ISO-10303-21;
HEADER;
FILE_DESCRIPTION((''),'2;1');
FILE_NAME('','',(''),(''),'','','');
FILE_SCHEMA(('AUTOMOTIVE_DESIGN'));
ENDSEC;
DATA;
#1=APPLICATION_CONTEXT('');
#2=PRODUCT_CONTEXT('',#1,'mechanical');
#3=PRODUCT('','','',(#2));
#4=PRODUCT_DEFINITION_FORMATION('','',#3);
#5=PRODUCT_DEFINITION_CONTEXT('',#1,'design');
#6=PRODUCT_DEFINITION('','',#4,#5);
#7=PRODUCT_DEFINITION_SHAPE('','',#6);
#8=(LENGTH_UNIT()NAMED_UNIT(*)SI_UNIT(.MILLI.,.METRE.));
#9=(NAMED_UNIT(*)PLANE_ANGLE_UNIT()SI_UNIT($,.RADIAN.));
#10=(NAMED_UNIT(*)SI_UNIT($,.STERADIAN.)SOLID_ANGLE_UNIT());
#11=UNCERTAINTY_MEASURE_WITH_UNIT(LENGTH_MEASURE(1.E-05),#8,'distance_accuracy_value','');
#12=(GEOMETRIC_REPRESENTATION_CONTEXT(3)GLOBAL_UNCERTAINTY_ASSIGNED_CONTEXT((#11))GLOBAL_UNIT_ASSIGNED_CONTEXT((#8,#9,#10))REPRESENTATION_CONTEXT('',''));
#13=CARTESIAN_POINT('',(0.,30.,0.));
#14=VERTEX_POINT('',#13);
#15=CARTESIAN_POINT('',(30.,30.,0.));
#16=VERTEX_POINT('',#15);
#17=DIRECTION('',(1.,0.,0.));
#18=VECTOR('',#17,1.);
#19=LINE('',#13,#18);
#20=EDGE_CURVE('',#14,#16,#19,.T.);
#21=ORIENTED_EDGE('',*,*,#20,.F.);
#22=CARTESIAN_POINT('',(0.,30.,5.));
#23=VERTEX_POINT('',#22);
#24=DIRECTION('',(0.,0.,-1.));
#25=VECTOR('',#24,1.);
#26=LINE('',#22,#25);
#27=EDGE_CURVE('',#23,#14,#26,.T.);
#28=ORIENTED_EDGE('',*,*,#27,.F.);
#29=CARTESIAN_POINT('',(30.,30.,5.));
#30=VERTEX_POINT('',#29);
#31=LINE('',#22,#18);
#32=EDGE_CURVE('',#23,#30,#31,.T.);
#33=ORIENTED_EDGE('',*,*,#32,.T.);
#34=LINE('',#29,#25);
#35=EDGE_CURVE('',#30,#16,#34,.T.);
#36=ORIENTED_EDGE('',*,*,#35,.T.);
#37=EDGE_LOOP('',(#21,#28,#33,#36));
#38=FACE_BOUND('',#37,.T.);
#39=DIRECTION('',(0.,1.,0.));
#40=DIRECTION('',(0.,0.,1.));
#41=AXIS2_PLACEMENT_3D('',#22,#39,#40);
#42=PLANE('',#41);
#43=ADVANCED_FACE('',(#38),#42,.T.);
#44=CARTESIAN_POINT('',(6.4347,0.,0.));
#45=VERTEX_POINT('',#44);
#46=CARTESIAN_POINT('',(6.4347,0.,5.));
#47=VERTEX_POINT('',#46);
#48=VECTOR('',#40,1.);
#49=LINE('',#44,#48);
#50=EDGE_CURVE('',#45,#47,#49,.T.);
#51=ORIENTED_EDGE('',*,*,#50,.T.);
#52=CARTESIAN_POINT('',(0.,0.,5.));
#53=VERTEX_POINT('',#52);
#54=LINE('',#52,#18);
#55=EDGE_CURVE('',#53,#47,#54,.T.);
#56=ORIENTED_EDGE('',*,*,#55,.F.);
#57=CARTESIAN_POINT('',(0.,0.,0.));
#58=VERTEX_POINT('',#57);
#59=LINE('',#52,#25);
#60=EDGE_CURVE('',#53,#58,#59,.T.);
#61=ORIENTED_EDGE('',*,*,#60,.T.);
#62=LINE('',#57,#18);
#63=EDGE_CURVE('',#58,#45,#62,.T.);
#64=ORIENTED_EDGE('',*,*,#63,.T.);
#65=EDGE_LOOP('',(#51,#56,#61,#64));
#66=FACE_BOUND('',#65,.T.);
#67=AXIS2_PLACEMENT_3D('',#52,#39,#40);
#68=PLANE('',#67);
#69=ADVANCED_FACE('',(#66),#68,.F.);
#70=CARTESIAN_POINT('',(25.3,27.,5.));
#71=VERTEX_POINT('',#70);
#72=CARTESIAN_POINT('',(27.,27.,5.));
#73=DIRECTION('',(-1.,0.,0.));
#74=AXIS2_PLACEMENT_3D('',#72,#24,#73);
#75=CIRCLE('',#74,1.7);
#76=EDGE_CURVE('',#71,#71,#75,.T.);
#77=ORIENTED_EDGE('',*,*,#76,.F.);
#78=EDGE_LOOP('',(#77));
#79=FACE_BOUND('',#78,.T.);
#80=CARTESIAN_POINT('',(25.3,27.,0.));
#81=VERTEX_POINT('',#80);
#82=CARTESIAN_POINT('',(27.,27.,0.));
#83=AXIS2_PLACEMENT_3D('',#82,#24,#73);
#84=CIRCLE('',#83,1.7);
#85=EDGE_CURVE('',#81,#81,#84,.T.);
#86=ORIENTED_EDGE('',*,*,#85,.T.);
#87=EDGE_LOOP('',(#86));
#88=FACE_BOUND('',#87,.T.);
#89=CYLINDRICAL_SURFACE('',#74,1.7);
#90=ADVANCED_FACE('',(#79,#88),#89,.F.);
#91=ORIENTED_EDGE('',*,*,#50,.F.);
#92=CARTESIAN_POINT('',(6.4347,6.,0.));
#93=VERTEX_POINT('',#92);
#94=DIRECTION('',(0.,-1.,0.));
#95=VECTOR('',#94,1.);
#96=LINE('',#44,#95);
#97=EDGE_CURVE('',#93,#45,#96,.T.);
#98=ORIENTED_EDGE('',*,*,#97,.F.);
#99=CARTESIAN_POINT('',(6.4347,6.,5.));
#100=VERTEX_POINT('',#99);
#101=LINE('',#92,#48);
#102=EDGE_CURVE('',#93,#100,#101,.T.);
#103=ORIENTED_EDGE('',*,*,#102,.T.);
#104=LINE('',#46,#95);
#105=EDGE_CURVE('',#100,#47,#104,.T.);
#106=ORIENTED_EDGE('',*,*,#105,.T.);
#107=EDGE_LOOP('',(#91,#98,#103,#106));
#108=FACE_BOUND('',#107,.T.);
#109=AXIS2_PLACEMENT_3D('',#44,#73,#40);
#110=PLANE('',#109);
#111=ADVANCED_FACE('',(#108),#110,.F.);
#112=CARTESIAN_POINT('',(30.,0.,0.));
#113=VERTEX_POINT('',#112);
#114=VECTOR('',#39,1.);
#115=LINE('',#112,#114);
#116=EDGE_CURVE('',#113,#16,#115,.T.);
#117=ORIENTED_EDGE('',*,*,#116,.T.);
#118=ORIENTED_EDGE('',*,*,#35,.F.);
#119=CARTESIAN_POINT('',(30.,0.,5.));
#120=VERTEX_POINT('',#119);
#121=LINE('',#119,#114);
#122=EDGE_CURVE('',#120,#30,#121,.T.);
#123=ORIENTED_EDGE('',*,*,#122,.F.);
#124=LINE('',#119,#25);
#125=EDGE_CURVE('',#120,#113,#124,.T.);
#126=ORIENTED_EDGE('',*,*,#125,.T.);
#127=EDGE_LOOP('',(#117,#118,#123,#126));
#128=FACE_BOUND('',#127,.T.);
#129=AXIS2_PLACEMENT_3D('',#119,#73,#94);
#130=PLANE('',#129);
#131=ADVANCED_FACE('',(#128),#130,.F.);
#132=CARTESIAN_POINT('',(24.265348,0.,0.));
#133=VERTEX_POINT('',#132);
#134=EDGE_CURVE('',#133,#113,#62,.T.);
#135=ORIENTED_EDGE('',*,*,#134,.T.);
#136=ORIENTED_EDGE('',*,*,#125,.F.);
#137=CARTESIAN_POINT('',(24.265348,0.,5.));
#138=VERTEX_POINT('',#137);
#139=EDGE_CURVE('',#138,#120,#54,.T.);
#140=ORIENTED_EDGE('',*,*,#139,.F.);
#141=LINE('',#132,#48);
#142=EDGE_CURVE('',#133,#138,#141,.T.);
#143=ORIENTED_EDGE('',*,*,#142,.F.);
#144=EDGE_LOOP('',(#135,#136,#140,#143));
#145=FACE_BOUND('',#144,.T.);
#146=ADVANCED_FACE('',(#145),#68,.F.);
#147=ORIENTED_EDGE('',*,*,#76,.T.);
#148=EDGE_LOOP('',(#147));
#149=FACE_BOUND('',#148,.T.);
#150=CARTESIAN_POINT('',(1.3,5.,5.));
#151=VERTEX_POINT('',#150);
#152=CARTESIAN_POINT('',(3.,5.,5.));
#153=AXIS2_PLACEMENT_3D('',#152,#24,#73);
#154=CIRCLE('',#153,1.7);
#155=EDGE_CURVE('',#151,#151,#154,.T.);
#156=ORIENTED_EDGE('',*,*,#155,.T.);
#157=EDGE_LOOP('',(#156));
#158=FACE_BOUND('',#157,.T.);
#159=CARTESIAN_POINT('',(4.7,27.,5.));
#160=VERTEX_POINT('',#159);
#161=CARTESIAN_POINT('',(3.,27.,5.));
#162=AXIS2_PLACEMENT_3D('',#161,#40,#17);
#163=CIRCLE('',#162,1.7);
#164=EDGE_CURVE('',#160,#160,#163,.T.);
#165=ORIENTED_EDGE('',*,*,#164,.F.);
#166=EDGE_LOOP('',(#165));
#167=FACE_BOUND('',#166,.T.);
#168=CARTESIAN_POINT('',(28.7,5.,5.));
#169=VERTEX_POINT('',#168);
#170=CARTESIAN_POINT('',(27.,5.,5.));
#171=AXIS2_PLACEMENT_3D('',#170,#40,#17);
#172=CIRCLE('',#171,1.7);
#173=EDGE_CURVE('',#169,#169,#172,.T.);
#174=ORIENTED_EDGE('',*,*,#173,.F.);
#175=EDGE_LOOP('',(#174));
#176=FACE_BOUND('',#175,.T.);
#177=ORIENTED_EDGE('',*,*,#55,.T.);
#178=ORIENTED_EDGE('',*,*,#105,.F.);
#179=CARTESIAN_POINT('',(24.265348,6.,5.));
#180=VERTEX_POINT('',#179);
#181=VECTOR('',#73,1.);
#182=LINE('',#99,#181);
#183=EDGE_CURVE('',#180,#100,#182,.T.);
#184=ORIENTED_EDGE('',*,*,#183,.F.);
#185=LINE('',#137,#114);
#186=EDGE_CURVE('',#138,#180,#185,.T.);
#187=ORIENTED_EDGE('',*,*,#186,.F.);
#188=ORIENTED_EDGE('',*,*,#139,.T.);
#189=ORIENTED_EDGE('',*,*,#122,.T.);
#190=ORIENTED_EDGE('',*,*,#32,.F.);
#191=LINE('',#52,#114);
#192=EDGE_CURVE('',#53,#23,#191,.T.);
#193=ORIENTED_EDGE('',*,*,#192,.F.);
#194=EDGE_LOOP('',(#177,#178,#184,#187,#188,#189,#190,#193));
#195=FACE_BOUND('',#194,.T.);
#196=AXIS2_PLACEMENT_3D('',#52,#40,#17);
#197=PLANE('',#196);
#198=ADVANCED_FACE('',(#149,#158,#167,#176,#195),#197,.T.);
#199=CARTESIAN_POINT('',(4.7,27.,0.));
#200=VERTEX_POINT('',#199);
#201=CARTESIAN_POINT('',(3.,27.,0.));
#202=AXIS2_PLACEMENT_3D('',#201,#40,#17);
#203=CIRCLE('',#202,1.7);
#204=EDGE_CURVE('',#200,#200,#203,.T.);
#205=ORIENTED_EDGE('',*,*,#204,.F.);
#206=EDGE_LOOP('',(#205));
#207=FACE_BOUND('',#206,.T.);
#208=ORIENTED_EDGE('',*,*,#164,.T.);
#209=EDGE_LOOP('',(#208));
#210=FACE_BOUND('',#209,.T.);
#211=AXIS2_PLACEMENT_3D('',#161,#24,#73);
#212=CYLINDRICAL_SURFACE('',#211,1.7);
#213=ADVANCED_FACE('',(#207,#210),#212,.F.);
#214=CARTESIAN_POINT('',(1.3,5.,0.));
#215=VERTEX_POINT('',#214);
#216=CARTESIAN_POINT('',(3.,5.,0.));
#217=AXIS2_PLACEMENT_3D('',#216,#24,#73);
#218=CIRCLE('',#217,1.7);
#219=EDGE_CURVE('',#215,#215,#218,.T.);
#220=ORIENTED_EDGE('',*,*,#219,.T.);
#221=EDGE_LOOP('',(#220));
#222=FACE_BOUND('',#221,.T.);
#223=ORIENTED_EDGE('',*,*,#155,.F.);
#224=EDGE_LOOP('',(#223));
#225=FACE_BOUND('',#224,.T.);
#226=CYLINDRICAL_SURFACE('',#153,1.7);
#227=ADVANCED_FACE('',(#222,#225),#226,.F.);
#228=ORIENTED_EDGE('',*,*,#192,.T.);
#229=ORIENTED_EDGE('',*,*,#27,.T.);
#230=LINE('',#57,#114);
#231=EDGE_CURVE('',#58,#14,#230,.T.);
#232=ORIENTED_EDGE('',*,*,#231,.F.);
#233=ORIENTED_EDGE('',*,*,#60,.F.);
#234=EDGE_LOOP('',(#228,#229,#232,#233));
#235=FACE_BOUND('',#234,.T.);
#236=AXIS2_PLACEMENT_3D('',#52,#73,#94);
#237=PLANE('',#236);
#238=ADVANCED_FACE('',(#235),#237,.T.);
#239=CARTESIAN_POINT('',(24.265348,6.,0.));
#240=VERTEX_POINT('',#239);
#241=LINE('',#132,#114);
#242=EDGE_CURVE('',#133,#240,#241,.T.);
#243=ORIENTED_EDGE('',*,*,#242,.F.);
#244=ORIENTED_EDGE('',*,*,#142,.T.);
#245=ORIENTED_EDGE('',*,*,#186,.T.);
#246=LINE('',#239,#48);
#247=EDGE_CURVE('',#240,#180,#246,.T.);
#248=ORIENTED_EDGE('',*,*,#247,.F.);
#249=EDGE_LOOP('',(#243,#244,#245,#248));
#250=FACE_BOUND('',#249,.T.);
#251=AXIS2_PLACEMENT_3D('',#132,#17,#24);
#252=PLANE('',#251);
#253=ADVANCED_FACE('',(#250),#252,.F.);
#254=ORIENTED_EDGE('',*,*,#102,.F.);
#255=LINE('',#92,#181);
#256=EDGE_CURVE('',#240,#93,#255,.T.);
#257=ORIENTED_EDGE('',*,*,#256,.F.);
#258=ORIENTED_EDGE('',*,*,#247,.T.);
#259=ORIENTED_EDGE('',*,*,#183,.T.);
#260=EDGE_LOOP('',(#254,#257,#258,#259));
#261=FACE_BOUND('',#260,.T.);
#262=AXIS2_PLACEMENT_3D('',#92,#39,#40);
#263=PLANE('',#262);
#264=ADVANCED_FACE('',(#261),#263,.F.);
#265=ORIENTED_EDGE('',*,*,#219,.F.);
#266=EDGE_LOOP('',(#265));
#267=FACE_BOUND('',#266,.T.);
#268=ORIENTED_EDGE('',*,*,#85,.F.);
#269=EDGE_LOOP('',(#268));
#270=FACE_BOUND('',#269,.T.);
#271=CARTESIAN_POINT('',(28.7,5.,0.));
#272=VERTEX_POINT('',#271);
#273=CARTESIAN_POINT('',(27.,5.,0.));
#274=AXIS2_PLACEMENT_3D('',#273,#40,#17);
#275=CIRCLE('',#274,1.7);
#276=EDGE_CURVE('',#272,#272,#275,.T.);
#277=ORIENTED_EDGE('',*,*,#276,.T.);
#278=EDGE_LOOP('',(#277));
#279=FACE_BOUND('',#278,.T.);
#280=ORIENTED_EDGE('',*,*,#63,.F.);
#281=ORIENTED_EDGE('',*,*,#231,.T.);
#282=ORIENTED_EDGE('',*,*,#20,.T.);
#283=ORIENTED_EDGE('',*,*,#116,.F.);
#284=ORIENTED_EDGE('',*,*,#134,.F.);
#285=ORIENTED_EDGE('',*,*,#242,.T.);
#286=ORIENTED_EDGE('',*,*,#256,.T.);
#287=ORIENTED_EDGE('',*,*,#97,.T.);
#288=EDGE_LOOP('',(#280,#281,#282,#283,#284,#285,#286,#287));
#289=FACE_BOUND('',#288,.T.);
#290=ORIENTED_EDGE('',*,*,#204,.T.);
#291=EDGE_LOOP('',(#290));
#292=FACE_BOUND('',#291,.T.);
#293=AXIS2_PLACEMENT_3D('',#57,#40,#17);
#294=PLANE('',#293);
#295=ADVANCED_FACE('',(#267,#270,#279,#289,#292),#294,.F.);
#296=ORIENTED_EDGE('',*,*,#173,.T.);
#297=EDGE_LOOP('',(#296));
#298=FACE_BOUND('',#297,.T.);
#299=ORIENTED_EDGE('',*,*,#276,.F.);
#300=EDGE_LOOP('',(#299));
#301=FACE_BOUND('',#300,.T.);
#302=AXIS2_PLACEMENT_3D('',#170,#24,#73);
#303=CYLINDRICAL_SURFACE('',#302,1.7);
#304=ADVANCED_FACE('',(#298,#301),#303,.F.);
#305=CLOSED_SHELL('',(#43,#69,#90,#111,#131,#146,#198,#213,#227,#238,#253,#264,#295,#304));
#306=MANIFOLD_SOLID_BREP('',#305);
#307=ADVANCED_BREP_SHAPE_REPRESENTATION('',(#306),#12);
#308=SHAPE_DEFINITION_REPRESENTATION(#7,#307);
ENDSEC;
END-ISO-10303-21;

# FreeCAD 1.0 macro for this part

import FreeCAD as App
import Part
import Sketcher
from FreeCAD import Vector


def add_polygon(sketch, points):
    """Adds a closed chain of lines whose ends are joined by coincident constraints."""
    first, n = sketch.GeometryCount, len(points)
    for a, b in zip(points, points[1:] + points[:1]):
        sketch.addGeometry(Part.LineSegment(App.Vector(*a, 0), App.Vector(*b, 0)), False)
    for i in range(n):
        sketch.addConstraint(Sketcher.Constraint("Coincident", first + i, 2, first + (i + 1) % n, 1))

doc = App.newDocument("Part")
body = doc.addObject("PartDesign::Body", "Body")

# Sketch on XY plane
sketch1 = doc.addObject("Sketcher::SketchObject", "Sketch")
body.addObject(sketch1)
sketch1.AttachmentSupport = (doc.XY_Plane, [""])
sketch1.MapMode = "FlatFace"
add_polygon(sketch1, [(0, 30), (0, 0), (30, 0), (30, 30)])  # lines 0-3
sketch1.addGeometry(Part.Circle(Vector(3, 5, 0), Vector(0, 0, 1), 1.7), False)  # 4
sketch1.addGeometry(Part.Circle(Vector(27, 5, 0), Vector(0, 0, 1), 1.7), False)  # 5
sketch1.addGeometry(Part.Circle(Vector(3, 27, 0), Vector(0, 0, 1), 1.7), False)  # 6
sketch1.addGeometry(Part.Circle(Vector(27, 27, 0), Vector(0, 0, 1), 1.7), False)  # 7
sketch1.addConstraint([
    Sketcher.Constraint("Vertical", 0),
    Sketcher.Constraint("Horizontal", 1),
    Sketcher.Constraint("Vertical", 2),
    Sketcher.Constraint("Horizontal", 3),
    Sketcher.Constraint("Coincident", 0, 2, -1, 1),
    Sketcher.Constraint("Equal", 4, 5),
    Sketcher.Constraint("Equal", 5, 6),
    Sketcher.Constraint("Equal", 6, 7),
    Sketcher.Constraint("Horizontal", 4, 3, 5, 3),
    Sketcher.Constraint("Horizontal", 6, 3, 7, 3),
    Sketcher.Constraint("Vertical", 4, 3, 6, 3),
    Sketcher.Constraint("Vertical", 5, 3, 7, 3),
    Sketcher.Constraint("Equal", 3, 0),
    Sketcher.Constraint("Diameter", 4, 3.4),
    Sketcher.Constraint("DistanceX", 1, 1, 1, 2, 30.0),
    Sketcher.Constraint("DistanceX", -1, 1, 4, 3, 3.0),
    Sketcher.Constraint("DistanceY", -1, 1, 4, 3, 5.0),
    Sketcher.Constraint("DistanceX", -1, 1, 5, 3, 27.0),
    Sketcher.Constraint("DistanceY", -1, 1, 6, 3, 27.0),
])
pad1 = doc.addObject("PartDesign::Pad", "Pad")
body.addObject(pad1)
pad1.Profile = sketch1
pad1.Length = 5

# Sketch on XY plane
sketch2 = doc.addObject("Sketcher::SketchObject", "Sketch001")
body.addObject(sketch2)
sketch2.AttachmentSupport = (doc.XY_Plane, [""])
sketch2.MapMode = "FlatFace"
sketch2.AttachmentOffset = App.Placement(Vector(0, 0, 5), App.Rotation())
add_polygon(sketch2, [(6, 6), (6, 0), (24, 0), (24, 6)])  # lines 0-3
sketch2.addConstraint([
    Sketcher.Constraint("Vertical", 0),
    Sketcher.Constraint("Horizontal", 1),
    Sketcher.Constraint("Vertical", 2),
    Sketcher.Constraint("Horizontal", 3),
    Sketcher.Constraint("PointOnObject", 0, 2, -1),
    Sketcher.Constraint("DistanceY", 0, 2, 0, 1, 6.0),
    Sketcher.Constraint("DistanceX", -1, 1, 0, 2, 6.4347),
    Sketcher.Constraint("DistanceX", 1, 1, 1, 2, 17.830648),
])
pocket1 = doc.addObject("PartDesign::Pocket", "Pocket")
body.addObject(pocket1)
pocket1.Profile = sketch2
pocket1.Length = 5

doc.recompute()
